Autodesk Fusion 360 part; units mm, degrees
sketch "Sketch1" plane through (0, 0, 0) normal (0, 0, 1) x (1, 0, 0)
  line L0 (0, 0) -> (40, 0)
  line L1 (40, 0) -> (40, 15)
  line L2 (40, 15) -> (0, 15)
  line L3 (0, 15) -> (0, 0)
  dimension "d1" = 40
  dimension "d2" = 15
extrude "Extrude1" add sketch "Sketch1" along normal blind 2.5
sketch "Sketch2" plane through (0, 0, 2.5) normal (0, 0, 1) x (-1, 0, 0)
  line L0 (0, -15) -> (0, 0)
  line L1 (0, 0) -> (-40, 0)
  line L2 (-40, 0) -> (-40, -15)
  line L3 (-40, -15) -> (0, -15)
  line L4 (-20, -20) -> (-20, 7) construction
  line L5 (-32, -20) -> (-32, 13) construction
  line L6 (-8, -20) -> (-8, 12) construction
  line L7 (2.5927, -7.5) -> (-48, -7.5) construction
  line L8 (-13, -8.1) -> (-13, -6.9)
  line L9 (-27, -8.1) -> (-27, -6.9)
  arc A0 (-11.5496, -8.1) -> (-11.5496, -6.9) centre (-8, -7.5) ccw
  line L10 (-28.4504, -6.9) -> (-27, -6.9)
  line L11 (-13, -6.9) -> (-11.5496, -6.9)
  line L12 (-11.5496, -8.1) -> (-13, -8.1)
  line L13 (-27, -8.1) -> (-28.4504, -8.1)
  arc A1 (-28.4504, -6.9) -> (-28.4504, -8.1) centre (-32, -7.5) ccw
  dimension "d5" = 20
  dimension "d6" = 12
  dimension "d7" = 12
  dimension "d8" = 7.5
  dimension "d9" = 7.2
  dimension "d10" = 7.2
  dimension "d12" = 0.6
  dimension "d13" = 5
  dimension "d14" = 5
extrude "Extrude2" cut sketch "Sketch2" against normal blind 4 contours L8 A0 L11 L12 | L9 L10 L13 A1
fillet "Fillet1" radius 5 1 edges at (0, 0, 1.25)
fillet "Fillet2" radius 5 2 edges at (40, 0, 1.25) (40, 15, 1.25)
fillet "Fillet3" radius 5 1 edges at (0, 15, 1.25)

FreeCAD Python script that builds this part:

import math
import FreeCAD as App
import Part
import Sketcher


def edges_at(feature, points):
    """Names of the edges that pass closest to the given points."""
    edges = feature.Shape.Edges
    near = lambda p: min(range(len(edges)), key=lambda i: edges[i].distToShape(Part.Vertex(*p))[0])
    return sorted({f"Edge{near(p) + 1}" for p in points})

doc = App.newDocument("Part")
body = doc.addObject("PartDesign::Body", "Body")

sketch1 = doc.addObject("Sketcher::SketchObject", "Sketch")
body.addObject(sketch1)
sketch1.AttachmentSupport = (doc.XY_Plane, [""])
sketch1.MapMode = "FlatFace"
sketch1.addGeometry(Part.LineSegment(App.Vector(0, 15, 0), App.Vector(0, 0, 0)), False)
sketch1.addGeometry(Part.LineSegment(App.Vector(0, 0, 0), App.Vector(40, 0, 0)), False)
sketch1.addGeometry(Part.LineSegment(App.Vector(40, 0, 0), App.Vector(40, 15, 0)), False)
sketch1.addGeometry(Part.LineSegment(App.Vector(40, 15, 0), App.Vector(0, 15, 0)), False)
sketch1.addConstraint(Sketcher.Constraint("Coincident", 0, 2, 1, 1))
sketch1.addConstraint(Sketcher.Constraint("Coincident", 1, 2, 2, 1))
sketch1.addConstraint(Sketcher.Constraint("Coincident", 2, 2, 3, 1))
sketch1.addConstraint(Sketcher.Constraint("Coincident", 3, 2, 0, 1))
sketch1.addConstraint(Sketcher.Constraint("Vertical", 0))
sketch1.addConstraint(Sketcher.Constraint("Horizontal", 1))
sketch1.addConstraint(Sketcher.Constraint("Vertical", 2))
sketch1.addConstraint(Sketcher.Constraint("Horizontal", 3))
sketch1.addConstraint(Sketcher.Constraint("Coincident", 0, 2, -1, 1))
sketch1.addConstraint(Sketcher.Constraint("DistanceX", 1, 1, 1, 2, 40.0))
sketch1.addConstraint(Sketcher.Constraint("DistanceY", 0, 2, 0, 1, 15.0))
pad1 = doc.addObject("PartDesign::Pad", "Pad")
body.addObject(pad1)
pad1.Profile = sketch1
pad1.Length = 2.5

sketch2 = doc.addObject("Sketcher::SketchObject", "Sketch001")
body.addObject(sketch2)
sketch2.AttachmentSupport = (doc.XY_Plane, [""])
sketch2.MapMode = "FlatFace"
sketch2.AttachmentOffset = App.Placement(App.Vector(0, 0, 2.5), App.Rotation())
sketch2.addGeometry(Part.LineSegment(App.Vector(13, 6.9, 0), App.Vector(13, 8.1, 0)), False)
sketch2.addGeometry(Part.LineSegment(App.Vector(13, 8.1, 0), App.Vector(11.5, 8.1, 0)), False)
sketch2.addGeometry(Part.ArcOfCircle(Part.Circle(App.Vector(8, 7.5, 0), App.Vector(0, 0, 1), 3.6), math.radians(10), math.radians(350)), False)
sketch2.addGeometry(Part.LineSegment(App.Vector(11.5, 6.9, 0), App.Vector(13, 6.9, 0)), False)
sketch2.addGeometry(Part.LineSegment(App.Vector(28.5, 8.1, 0), App.Vector(27, 8.1, 0)), False)
sketch2.addGeometry(Part.LineSegment(App.Vector(27, 8.1, 0), App.Vector(27, 6.9, 0)), False)
sketch2.addGeometry(Part.LineSegment(App.Vector(27, 6.9, 0), App.Vector(28.5, 6.9, 0)), False)
sketch2.addGeometry(Part.ArcOfCircle(Part.Circle(App.Vector(32, 7.5, 0), App.Vector(0, 0, 1), 3.6), math.radians(-170), math.radians(170)), False)
sketch2.addConstraint(Sketcher.Constraint("Coincident", 0, 2, 1, 1))
sketch2.addConstraint(Sketcher.Constraint("Coincident", 1, 2, 2, 1))
sketch2.addConstraint(Sketcher.Constraint("Coincident", 2, 2, 3, 1))
sketch2.addConstraint(Sketcher.Constraint("Coincident", 3, 2, 0, 1))
sketch2.addConstraint(Sketcher.Constraint("Coincident", 4, 2, 5, 1))
sketch2.addConstraint(Sketcher.Constraint("Coincident", 5, 2, 6, 1))
sketch2.addConstraint(Sketcher.Constraint("Coincident", 6, 2, 7, 1))
sketch2.addConstraint(Sketcher.Constraint("Coincident", 7, 2, 4, 1))
sketch2.addConstraint(Sketcher.Constraint("Vertical", 0))
sketch2.addConstraint(Sketcher.Constraint("Horizontal", 1))
sketch2.addConstraint(Sketcher.Constraint("Horizontal", 3))
sketch2.addConstraint(Sketcher.Constraint("Horizontal", 4))
sketch2.addConstraint(Sketcher.Constraint("Vertical", 5))
sketch2.addConstraint(Sketcher.Constraint("Horizontal", 6))
sketch2.addConstraint(Sketcher.Constraint("Equal", 2, 7))
sketch2.addConstraint(Sketcher.Constraint("Horizontal", 2, 3, 7, 3))
sketch2.addConstraint(Sketcher.Constraint("Horizontal", 1, 2, 4, 2))
sketch2.addConstraint(Sketcher.Constraint("Horizontal", 3, 2, 5, 2))
sketch2.addConstraint(Sketcher.Constraint("Vertical", 1, 2, 2, 2))
sketch2.addConstraint(Sketcher.Constraint("Equal", 3, 4))
sketch2.addConstraint(Sketcher.Constraint("Radius", 2, 3.6))
sketch2.addConstraint(Sketcher.Constraint("DistanceX", 2, 3, 0, 2, 5.0))
sketch2.addConstraint(Sketcher.Constraint("DistanceY", -1, 1, 2, 3, 7.5))
sketch2.addConstraint(Sketcher.Constraint("DistanceY", 2, 3, 0, 2, 0.6))
sketch2.addConstraint(Sketcher.Constraint("DistanceX", -1, 1, 2, 3, 8.0))
sketch2.addConstraint(Sketcher.Constraint("DistanceX", -1, 1, 7, 3, 32.0))
pocket1 = doc.addObject("PartDesign::Pocket", "Pocket")
body.addObject(pocket1)
pocket1.Profile = sketch2
pocket1.Length = 4
doc.recompute()

fillet = doc.addObject("PartDesign::Fillet", "Fillet")
body.addObject(fillet)
fillet.Base = (pocket1, edges_at(pocket1, [(0, 0, 1.25)]))
fillet.Radius = 5
doc.recompute()

fillet2 = doc.addObject("PartDesign::Fillet", "Fillet001")
body.addObject(fillet2)
fillet2.Base = (fillet, edges_at(fillet, [(40, 0, 1.25), (40, 15, 1.25)]))
fillet2.Radius = 5
doc.recompute()

fillet3 = doc.addObject("PartDesign::Fillet", "Fillet002")
body.addObject(fillet3)
fillet3.Base = (fillet2, edges_at(fillet2, [(0, 15, 1.25)]))
fillet3.Radius = 5

doc.recompute()
